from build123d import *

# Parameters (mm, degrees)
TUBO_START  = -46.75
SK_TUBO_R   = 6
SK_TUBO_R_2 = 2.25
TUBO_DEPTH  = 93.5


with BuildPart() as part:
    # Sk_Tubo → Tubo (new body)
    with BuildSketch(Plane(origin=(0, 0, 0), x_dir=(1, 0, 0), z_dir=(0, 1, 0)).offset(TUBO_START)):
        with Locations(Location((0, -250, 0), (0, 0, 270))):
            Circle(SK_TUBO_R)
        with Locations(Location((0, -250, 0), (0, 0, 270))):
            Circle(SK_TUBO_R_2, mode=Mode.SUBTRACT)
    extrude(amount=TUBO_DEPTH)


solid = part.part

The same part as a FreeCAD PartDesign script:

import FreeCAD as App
import Part
import Sketcher
Q = App.Units.Quantity

doc = App.newDocument("Part")
params = doc.addObject("Spreadsheet::Sheet", "Params")
for row, (alias, value) in enumerate([
    ("sketch1_diameter", "12 mm"),
    ("sketch1_diameter2", "4.5 mm"),
    ("pad1_length", "93.5 mm"),
], start=1):
    params.set(f"A{row}", alias)
    params.set(f"B{row}", "=" + value)
    params.setAlias(f"B{row}", alias)

body = doc.addObject("PartDesign::Body", "Body")

sketch1 = body.newObject("Sketcher::SketchObject", "Sketch")
sketch1.AttachmentSupport = (doc.getObject("XZ_Plane"), [""])
sketch1.MapMode = "FlatFace"
sketch1.AttachmentOffset = App.Placement(App.Vector(0, 0, 46.75), App.Rotation())
sketch1.addGeometry([
    Part.Circle(App.Vector(0, 250, 0), App.Vector(0, 0, 1), 6),
    Part.Circle(App.Vector(0, 250, 0), App.Vector(0, 0, 1), 2.25),
], False)
sketch1.addConstraint([
    Sketcher.Constraint("Coincident", 1, 3, 0, 3),
    Sketcher.Constraint("PointOnObject", 0, 3, -2),
    Sketcher.Constraint("Diameter", 0, Q("12 mm")),
    Sketcher.Constraint("Diameter", 1, Q("4.5 mm")),
    Sketcher.Constraint("DistanceY", -1, 1, 0, 3, Q("250 mm")),
])
sketch1.setExpression("Constraints[2]", "Params.sketch1_diameter")
sketch1.setExpression("Constraints[3]", "Params.sketch1_diameter2")
pad1 = body.newObject("PartDesign::Pad", "Pad")
pad1.Profile = sketch1
pad1.setExpression("Length", "Params.pad1_length")
pad1.Reversed = True

doc.recompute()
